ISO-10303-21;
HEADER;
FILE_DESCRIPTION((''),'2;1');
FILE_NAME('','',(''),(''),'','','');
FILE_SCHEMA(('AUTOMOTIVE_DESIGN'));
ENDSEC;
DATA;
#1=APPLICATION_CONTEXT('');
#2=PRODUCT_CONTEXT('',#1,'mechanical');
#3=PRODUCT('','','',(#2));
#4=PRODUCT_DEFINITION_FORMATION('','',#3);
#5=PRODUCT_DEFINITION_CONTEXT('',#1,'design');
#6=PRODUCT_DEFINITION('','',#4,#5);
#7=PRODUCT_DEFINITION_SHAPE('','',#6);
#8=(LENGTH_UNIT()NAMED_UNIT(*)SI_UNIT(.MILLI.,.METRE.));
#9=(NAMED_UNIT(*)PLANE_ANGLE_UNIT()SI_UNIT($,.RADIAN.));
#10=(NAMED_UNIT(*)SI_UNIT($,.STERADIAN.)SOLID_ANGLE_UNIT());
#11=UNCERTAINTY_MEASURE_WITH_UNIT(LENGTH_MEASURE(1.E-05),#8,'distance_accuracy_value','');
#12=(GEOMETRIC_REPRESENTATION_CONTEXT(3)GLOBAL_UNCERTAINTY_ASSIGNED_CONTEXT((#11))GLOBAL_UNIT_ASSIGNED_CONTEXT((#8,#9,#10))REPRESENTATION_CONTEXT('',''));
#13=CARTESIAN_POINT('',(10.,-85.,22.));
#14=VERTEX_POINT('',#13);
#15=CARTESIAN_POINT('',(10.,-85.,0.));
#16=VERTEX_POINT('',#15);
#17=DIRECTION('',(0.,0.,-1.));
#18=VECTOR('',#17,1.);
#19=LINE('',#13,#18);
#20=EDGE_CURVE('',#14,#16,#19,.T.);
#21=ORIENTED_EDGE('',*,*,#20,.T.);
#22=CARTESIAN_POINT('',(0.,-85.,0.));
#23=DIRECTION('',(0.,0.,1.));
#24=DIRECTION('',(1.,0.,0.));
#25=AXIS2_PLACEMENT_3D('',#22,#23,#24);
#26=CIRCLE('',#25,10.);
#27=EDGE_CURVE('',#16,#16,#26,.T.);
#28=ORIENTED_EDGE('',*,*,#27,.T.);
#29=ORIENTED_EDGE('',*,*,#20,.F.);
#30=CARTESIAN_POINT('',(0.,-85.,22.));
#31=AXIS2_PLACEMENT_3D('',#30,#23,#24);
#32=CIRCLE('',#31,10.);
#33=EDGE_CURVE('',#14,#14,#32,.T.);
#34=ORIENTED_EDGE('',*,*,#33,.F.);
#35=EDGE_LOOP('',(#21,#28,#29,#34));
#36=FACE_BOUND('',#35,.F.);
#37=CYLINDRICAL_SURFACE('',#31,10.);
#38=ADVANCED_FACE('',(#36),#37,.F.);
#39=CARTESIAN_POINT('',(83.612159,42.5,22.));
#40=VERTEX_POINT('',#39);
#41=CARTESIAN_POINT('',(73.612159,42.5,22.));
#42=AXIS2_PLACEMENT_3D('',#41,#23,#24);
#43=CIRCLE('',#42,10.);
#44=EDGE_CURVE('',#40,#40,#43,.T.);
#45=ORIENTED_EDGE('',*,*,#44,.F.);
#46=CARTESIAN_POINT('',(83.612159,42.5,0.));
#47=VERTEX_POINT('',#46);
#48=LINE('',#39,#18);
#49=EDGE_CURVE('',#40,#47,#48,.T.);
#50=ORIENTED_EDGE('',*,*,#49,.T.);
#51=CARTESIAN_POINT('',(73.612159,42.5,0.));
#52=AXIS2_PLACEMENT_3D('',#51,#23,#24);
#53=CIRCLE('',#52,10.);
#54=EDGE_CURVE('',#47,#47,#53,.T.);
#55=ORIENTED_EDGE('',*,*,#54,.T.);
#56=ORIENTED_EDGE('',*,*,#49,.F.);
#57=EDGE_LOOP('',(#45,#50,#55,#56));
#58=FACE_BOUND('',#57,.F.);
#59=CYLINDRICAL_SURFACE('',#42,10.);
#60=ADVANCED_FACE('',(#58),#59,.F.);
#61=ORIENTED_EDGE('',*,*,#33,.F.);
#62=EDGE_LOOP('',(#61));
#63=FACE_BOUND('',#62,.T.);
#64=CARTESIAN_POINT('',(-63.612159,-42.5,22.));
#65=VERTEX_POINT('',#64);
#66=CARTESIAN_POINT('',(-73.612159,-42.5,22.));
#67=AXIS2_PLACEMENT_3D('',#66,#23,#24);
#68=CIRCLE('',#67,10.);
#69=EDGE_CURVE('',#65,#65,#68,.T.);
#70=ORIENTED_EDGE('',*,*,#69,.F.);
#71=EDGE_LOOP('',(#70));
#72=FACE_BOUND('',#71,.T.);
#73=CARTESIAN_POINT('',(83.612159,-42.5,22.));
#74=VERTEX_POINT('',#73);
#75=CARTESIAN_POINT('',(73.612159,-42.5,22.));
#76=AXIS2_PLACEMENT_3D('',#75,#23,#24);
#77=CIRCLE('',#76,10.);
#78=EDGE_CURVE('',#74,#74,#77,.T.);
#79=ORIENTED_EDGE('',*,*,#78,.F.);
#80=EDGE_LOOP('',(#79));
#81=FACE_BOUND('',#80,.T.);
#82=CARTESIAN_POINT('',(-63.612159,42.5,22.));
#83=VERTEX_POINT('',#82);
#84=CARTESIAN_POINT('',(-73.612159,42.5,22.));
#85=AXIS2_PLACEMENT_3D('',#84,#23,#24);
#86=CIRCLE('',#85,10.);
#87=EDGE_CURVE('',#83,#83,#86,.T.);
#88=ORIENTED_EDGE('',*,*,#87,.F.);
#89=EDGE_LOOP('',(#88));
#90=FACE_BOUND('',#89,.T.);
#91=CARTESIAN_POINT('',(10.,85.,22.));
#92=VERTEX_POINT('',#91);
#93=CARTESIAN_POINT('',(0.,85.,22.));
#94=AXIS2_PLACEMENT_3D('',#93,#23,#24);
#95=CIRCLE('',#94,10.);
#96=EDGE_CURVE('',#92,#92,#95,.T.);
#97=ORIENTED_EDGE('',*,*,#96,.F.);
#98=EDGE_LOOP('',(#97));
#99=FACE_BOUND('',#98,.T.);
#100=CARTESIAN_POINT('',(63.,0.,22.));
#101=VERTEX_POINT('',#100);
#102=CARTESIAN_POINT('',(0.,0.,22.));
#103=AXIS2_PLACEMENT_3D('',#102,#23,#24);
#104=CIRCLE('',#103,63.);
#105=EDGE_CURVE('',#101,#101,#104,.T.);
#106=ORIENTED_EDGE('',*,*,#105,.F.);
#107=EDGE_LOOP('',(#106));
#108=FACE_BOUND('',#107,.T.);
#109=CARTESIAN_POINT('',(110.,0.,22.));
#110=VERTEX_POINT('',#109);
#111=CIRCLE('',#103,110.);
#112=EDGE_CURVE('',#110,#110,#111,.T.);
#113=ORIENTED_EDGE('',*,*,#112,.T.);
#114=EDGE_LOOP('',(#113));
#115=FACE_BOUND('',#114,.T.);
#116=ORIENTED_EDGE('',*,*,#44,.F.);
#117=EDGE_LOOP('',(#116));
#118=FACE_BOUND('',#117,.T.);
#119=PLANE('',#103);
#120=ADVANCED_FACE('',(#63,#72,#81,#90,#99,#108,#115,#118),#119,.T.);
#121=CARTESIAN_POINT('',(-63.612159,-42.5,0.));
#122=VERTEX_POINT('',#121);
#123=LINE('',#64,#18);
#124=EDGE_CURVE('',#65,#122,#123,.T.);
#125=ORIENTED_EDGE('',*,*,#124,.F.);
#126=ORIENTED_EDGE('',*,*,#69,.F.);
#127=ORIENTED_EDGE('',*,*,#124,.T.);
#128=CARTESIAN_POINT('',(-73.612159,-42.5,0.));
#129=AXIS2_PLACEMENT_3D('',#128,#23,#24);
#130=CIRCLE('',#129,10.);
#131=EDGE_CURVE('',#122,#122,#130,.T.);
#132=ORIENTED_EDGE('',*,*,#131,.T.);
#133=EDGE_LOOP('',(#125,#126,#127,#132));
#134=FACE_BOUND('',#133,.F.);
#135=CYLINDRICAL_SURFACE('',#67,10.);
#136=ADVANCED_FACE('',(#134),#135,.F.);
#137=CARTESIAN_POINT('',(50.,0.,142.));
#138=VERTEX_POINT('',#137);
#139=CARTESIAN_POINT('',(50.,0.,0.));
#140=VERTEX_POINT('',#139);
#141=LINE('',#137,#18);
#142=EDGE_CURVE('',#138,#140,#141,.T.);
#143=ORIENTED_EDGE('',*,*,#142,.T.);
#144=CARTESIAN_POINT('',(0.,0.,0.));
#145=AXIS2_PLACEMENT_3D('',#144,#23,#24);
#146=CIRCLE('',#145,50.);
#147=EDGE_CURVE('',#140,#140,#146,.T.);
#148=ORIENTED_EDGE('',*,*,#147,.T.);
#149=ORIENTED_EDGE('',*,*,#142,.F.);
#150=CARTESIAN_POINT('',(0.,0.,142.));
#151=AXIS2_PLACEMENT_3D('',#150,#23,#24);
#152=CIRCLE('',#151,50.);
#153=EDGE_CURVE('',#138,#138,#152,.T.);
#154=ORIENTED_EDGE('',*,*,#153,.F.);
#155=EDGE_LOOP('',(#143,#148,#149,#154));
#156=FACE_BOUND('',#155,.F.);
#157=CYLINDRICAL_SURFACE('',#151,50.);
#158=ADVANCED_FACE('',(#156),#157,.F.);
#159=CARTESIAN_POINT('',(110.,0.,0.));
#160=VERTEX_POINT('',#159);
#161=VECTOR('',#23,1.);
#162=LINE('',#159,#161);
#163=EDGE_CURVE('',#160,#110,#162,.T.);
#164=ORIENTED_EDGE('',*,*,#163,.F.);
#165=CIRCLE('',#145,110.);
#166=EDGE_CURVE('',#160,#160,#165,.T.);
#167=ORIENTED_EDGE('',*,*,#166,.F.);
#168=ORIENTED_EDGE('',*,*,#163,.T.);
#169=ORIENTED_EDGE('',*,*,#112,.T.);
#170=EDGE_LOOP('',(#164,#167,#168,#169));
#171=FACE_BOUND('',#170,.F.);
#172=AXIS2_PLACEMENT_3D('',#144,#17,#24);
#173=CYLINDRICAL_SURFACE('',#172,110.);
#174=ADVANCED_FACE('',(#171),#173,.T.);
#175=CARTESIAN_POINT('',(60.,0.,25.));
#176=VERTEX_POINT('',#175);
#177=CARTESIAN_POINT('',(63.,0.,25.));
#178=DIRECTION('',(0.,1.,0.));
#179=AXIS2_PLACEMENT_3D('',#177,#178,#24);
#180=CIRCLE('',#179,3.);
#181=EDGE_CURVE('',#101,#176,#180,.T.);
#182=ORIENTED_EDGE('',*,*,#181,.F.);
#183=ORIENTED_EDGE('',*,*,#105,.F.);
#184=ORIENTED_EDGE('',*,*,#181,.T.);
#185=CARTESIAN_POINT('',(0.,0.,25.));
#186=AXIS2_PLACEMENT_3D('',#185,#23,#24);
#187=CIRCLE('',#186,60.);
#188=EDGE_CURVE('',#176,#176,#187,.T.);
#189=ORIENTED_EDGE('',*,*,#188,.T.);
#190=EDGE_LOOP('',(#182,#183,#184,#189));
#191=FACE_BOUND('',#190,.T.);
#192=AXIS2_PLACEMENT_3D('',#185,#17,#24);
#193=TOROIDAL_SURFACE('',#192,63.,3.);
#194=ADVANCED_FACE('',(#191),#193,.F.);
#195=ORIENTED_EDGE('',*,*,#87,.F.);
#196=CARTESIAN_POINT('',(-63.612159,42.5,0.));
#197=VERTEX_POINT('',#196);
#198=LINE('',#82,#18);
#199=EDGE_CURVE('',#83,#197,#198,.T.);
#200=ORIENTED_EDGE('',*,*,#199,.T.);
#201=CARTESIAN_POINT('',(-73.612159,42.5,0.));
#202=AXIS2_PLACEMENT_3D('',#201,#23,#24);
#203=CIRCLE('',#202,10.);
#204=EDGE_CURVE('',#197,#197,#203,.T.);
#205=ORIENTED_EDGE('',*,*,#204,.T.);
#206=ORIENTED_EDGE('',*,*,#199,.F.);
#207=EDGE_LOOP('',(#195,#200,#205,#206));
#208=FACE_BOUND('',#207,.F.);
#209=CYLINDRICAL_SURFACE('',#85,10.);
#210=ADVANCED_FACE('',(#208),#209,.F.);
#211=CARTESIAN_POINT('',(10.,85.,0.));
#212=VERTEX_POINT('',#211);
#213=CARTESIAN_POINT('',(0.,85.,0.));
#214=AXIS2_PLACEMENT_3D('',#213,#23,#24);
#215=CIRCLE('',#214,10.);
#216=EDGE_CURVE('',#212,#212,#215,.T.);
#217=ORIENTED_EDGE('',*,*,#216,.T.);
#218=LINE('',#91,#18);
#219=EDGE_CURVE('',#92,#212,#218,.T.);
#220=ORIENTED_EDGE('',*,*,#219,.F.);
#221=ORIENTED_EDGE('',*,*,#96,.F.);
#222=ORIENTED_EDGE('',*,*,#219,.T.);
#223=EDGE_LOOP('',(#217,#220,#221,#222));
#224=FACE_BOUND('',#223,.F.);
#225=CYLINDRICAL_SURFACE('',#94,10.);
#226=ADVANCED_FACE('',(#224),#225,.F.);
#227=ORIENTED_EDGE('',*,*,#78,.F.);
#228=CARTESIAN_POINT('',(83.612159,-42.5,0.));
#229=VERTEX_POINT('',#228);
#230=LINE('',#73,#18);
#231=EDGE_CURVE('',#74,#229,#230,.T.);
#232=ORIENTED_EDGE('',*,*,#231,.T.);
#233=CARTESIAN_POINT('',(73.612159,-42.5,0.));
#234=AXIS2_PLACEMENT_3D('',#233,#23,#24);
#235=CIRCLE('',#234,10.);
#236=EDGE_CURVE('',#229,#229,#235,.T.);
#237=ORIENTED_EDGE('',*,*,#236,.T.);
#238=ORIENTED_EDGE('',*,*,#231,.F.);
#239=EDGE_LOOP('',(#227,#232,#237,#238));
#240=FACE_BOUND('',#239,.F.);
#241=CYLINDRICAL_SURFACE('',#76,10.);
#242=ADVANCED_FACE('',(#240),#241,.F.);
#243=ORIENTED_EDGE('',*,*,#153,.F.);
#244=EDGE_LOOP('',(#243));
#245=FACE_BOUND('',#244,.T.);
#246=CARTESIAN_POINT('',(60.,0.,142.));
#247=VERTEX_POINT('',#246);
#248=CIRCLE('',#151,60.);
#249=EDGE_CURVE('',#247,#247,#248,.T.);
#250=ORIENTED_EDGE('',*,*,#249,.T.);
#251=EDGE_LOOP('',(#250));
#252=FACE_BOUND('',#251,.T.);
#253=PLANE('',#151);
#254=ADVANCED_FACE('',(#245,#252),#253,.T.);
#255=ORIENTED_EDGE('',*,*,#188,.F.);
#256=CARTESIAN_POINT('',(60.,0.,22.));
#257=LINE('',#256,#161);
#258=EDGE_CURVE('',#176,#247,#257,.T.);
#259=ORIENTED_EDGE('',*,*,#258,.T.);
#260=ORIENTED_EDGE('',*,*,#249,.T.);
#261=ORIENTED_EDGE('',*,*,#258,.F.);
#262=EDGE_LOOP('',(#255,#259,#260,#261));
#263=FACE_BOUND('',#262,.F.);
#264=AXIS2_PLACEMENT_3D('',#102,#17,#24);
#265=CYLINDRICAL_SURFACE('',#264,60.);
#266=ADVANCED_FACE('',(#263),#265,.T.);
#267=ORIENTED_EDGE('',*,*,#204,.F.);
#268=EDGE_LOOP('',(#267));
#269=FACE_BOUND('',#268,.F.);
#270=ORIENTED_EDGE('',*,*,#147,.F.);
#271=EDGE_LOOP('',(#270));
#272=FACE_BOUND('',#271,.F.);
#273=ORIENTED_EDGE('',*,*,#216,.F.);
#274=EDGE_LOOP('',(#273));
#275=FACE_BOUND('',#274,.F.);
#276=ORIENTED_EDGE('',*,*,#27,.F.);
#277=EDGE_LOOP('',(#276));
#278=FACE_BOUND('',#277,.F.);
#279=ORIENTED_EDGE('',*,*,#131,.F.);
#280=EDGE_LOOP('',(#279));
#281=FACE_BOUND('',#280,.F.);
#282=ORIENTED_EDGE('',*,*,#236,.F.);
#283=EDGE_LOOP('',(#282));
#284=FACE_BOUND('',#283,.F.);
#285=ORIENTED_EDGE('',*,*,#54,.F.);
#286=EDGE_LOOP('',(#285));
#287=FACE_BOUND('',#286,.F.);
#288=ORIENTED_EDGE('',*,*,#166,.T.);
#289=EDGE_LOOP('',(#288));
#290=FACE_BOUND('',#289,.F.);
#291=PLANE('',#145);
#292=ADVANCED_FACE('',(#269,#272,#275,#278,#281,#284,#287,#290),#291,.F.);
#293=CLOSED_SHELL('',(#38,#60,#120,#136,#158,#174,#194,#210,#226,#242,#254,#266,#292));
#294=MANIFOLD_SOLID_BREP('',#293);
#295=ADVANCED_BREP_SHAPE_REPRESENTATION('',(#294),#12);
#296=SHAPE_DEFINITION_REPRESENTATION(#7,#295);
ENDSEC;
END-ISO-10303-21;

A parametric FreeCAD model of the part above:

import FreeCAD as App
import Part
import Sketcher

V = App.Vector


def edges_at(feature, points):
    """Names of the edges that pass closest to the given points."""
    edges = feature.Shape.Edges
    near = lambda p: min(range(len(edges)), key=lambda i: edges[i].distToShape(Part.Vertex(*p))[0])
    return sorted({f"Edge{near(p) + 1}" for p in points})

doc = App.newDocument("Part")
params = doc.addObject("Spreadsheet::Sheet", "Params")
for row, (alias, value) in enumerate([
    ("sketch1_diameter", "220 mm"),
    ("pad1_length", "22 mm"),
    ("sketch2_diameter", "120 mm"),
    ("pad2_length", "120 mm"),
    ("sketch3_diameter", "100 mm"),
    ("sketch4_diameter", "20 mm"),
    ("fillet_radius", "3 mm"),
], start=1):
    params.set(f"A{row}", alias)
    params.set(f"B{row}", "=" + value)
    params.setAlias(f"B{row}", alias)

body = doc.addObject("PartDesign::Body", "Body")

sketch1 = body.newObject("Sketcher::SketchObject", "Sketch")
sketch1.AttachmentSupport = (doc.getObject("XY_Plane"), [""])
sketch1.MapMode = "FlatFace"
sketch1.addGeometry(Part.Circle(V(0, 0, 0), V(0, 0, 1), 110), False)
sketch1.addConstraint(Sketcher.Constraint("Coincident", 0, 3, -1, 1))
sketch1.addConstraint(Sketcher.Constraint("Diameter", 0, 220.0))
sketch1.setExpression("Constraints[1]", "Params.sketch1_diameter")
pad1 = body.newObject("PartDesign::Pad", "Pad")
pad1.Profile = sketch1
pad1.setExpression("Length", "Params.pad1_length")

sketch2 = body.newObject("Sketcher::SketchObject", "Sketch001")
sketch2.AttachmentSupport = (doc.getObject("XY_Plane"), [""])
sketch2.MapMode = "FlatFace"
sketch2.AttachmentOffset = App.Placement(V(0, 0, 22), App.Rotation())
sketch2.addGeometry(Part.Circle(V(0, 0, 0), V(0, 0, 1), 60), False)
sketch2.addConstraint(Sketcher.Constraint("Coincident", 0, 3, -1, 1))
sketch2.addConstraint(Sketcher.Constraint("Diameter", 0, 120.0))
sketch2.setExpression("Constraints[1]", "Params.sketch2_diameter")
pad2 = body.newObject("PartDesign::Pad", "Pad001")
pad2.Profile = sketch2
pad2.setExpression("Length", "Params.pad2_length")

sketch3 = body.newObject("Sketcher::SketchObject", "Sketch002")
sketch3.AttachmentSupport = (doc.getObject("XY_Plane"), [""])
sketch3.MapMode = "FlatFace"
sketch3.AttachmentOffset = App.Placement(V(0, 0, 142), App.Rotation())
sketch3.addGeometry(Part.Circle(V(0, 0, 0), V(0, 0, 1), 50), False)
sketch3.addConstraint(Sketcher.Constraint("Coincident", 0, 3, -1, 1))
sketch3.addConstraint(Sketcher.Constraint("Diameter", 0, 100.0))
sketch3.setExpression("Constraints[1]", "Params.sketch3_diameter")
pocket1 = body.newObject("PartDesign::Pocket", "Pocket")
pocket1.Profile = sketch3
pocket1.Type = "ThroughAll"

sketch4 = body.newObject("Sketcher::SketchObject", "Sketch003")
sketch4.AttachmentSupport = (doc.getObject("XY_Plane"), [""])
sketch4.MapMode = "FlatFace"
sketch4.AttachmentOffset = App.Placement(V(0, 0, 22), App.Rotation())
sketch4.addGeometry(Part.Circle(V(0, 85, 0), V(0, 0, 1), 10), False)
sketch4.addGeometry(Part.Circle(V(74, 42, 0), V(0, 0, 1), 10), False)
sketch4.addGeometry(Part.Circle(V(74, -42, 0), V(0, 0, 1), 10), False)
sketch4.addGeometry(Part.Circle(V(0, -85, 0), V(0, 0, 1), 10), False)
sketch4.addGeometry(Part.Circle(V(-74, -42, 0), V(0, 0, 1), 10), False)
sketch4.addGeometry(Part.Circle(V(-74, 42, 0), V(0, 0, 1), 10), False)
sketch4.addConstraint(Sketcher.Constraint("Equal", 0, 1))
sketch4.addConstraint(Sketcher.Constraint("Equal", 1, 2))
sketch4.addConstraint(Sketcher.Constraint("Equal", 2, 3))
sketch4.addConstraint(Sketcher.Constraint("Equal", 3, 4))
sketch4.addConstraint(Sketcher.Constraint("Equal", 4, 5))
sketch4.addConstraint(Sketcher.Constraint("Symmetric", 0, 3, 3, 3, -1, 1))
sketch4.addConstraint(Sketcher.Constraint("Symmetric", 1, 3, 4, 3, -1, 1))
sketch4.addConstraint(Sketcher.Constraint("Symmetric", 2, 3, 5, 3, -1, 1))
sketch4.addConstraint(Sketcher.Constraint("Symmetric", 2, 3, 4, 3, -2))
sketch4.addConstraint(Sketcher.Constraint("PointOnObject", 0, 3, -2))
sketch4.addConstraint(Sketcher.Constraint("Diameter", 0, 20.0))
sketch4.addConstraint(Sketcher.Constraint("DistanceY", -1, 1, 0, 3, 85.0))
sketch4.addConstraint(Sketcher.Constraint("DistanceY", 2, 3, 1, 3, 85.0))
sketch4.addConstraint(Sketcher.Constraint("DistanceX", -1, 1, 1, 3, 73.612159))
sketch4.setExpression("Constraints[10]", "Params.sketch4_diameter")
pocket2 = body.newObject("PartDesign::Pocket", "Pocket001")
pocket2.Profile = sketch4
pocket2.Type = "ThroughAll"
doc.recompute()

fillet = body.newObject("PartDesign::Fillet", "Fillet")
fillet.Base = (pocket2, edges_at(pocket2, [(-60, 0, 22)]))
fillet.setExpression("Radius", "Params.fillet_radius")

doc.recompute()
